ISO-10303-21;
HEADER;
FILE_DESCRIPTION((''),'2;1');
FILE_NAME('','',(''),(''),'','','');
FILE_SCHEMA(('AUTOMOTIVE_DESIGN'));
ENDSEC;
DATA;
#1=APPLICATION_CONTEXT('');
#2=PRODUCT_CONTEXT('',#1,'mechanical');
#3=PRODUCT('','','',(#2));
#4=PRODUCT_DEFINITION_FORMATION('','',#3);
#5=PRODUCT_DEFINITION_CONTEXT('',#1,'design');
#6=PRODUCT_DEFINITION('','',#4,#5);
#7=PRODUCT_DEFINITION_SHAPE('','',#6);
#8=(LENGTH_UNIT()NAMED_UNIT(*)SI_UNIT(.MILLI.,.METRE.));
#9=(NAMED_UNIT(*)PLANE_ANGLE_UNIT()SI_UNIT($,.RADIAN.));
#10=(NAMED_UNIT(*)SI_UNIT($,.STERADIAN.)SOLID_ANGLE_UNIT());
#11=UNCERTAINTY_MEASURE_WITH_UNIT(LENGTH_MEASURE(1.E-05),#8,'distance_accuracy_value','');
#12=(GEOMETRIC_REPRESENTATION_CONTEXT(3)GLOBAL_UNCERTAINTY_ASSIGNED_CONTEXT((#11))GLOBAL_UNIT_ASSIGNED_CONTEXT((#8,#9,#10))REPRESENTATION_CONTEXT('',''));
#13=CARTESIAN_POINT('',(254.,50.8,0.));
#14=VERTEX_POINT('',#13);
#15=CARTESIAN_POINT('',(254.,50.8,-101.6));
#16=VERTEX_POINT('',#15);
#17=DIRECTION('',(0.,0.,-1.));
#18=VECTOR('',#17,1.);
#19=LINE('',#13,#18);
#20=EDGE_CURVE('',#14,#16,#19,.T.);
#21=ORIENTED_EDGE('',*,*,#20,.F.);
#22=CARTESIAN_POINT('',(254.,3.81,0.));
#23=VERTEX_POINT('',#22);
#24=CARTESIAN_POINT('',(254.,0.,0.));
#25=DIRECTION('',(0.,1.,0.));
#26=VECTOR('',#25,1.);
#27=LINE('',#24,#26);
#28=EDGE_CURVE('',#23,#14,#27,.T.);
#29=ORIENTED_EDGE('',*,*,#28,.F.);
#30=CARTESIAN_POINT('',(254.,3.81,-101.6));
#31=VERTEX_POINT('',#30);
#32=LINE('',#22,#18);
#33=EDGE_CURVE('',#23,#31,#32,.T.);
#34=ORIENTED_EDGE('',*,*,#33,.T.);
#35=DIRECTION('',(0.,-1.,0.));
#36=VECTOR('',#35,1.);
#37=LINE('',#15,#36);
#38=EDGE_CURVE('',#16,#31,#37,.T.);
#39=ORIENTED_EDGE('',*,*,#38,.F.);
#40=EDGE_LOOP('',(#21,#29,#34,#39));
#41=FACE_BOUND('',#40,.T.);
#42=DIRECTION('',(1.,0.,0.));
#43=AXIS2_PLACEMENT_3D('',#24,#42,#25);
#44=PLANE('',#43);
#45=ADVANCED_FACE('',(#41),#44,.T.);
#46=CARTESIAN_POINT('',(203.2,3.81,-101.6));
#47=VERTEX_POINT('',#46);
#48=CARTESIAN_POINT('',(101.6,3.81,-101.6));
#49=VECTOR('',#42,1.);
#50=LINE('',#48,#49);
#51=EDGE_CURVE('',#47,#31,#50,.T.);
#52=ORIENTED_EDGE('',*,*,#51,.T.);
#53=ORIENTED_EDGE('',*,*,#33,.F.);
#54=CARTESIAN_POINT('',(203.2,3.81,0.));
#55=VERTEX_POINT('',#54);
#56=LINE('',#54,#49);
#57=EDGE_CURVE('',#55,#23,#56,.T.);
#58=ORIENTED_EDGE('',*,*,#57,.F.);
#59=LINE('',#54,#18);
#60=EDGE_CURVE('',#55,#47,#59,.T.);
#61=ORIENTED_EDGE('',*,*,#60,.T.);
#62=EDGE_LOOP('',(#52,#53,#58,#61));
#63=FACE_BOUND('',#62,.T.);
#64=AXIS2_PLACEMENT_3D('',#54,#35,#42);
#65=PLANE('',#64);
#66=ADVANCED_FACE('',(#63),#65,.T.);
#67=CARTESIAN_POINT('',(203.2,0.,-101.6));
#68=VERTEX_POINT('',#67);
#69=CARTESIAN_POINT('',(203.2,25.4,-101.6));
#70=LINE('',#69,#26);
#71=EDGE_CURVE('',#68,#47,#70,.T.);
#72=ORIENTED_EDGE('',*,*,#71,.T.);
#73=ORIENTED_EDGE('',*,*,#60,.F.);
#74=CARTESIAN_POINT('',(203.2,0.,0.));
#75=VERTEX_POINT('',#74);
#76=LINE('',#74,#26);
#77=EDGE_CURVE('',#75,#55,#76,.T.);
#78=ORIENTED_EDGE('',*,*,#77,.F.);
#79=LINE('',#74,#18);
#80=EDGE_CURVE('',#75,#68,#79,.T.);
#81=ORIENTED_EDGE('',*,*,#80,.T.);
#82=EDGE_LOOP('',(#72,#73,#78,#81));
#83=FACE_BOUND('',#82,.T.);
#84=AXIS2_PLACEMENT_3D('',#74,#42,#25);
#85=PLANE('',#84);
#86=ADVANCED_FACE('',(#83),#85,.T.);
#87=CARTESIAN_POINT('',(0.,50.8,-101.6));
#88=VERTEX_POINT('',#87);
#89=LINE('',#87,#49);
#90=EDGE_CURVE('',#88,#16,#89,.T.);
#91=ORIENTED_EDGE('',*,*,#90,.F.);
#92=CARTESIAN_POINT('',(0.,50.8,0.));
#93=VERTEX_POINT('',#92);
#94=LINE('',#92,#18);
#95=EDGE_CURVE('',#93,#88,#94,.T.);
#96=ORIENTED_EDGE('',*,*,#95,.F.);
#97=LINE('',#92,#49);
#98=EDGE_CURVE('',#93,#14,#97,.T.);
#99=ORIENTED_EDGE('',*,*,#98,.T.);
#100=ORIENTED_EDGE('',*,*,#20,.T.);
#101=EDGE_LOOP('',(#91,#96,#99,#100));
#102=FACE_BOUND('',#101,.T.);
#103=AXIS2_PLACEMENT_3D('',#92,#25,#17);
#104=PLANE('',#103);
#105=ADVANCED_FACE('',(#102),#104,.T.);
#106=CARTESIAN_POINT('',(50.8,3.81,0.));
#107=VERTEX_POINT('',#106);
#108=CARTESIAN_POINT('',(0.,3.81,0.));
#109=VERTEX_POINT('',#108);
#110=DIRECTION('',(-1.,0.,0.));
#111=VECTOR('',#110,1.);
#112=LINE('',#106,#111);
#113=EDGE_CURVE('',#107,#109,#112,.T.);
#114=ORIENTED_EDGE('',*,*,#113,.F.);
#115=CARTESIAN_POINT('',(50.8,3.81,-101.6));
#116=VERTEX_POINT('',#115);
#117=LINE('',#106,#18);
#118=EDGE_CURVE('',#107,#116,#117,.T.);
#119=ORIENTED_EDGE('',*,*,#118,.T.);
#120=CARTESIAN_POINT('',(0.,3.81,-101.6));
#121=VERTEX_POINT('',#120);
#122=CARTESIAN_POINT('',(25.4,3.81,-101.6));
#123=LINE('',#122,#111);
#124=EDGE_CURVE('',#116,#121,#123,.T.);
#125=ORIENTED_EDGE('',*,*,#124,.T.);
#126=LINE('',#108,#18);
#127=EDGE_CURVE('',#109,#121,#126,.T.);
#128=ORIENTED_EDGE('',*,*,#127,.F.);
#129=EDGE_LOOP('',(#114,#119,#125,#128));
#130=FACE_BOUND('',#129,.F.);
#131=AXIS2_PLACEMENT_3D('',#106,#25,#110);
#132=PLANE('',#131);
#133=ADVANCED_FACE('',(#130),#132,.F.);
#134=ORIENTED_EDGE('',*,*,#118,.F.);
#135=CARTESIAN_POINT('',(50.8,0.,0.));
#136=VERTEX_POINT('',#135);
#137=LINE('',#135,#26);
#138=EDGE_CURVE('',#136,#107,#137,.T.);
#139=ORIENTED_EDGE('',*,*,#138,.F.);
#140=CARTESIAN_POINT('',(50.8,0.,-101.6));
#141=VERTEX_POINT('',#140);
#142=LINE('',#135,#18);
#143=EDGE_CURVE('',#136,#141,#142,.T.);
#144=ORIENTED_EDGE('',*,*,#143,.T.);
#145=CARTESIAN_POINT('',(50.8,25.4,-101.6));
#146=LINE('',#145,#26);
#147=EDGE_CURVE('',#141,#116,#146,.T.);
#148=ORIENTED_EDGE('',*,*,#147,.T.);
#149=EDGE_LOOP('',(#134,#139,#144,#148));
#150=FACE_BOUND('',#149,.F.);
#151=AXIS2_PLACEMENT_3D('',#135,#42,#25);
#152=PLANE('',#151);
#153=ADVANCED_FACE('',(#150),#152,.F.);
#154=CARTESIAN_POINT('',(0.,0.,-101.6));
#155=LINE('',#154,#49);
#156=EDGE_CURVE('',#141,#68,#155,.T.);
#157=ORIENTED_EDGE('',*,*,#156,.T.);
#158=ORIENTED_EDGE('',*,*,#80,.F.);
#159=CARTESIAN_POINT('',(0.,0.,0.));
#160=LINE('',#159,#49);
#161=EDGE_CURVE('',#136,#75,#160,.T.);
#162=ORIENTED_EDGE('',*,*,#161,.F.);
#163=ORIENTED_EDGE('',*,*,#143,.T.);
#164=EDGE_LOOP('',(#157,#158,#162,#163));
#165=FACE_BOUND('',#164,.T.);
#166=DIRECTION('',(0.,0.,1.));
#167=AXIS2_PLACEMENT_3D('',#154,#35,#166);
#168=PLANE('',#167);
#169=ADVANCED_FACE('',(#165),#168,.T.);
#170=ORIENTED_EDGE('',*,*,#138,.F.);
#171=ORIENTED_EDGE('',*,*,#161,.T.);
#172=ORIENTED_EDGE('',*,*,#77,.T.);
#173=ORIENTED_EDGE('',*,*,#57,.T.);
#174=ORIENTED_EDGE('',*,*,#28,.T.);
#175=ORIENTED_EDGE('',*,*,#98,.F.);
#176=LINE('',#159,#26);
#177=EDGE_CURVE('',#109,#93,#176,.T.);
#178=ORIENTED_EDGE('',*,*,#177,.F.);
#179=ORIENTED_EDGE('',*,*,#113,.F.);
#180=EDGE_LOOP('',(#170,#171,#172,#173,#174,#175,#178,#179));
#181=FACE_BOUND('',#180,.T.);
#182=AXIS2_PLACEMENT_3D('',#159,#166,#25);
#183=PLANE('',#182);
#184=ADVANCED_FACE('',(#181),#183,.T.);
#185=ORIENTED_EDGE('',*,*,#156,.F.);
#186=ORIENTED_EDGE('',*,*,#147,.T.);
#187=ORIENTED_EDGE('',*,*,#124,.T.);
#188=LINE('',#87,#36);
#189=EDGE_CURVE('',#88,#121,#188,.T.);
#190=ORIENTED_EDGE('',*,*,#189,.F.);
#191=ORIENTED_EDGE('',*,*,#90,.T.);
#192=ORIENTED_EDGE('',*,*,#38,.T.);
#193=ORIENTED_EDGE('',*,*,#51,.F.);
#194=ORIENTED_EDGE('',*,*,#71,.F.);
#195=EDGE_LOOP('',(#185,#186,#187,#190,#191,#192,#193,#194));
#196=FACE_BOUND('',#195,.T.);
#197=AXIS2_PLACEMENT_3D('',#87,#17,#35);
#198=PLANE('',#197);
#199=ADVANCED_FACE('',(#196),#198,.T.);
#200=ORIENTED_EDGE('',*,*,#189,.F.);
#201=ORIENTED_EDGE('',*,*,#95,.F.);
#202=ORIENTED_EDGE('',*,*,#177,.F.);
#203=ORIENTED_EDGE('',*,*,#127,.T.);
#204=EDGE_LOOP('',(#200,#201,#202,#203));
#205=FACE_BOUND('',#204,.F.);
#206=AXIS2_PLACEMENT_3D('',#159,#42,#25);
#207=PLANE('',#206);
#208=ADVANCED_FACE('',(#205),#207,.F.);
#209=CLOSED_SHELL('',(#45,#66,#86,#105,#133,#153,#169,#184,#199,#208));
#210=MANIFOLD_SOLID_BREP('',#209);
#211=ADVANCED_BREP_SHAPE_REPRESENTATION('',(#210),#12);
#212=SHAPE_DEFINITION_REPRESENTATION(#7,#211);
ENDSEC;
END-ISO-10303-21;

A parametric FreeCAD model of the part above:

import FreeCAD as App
import Part
import Sketcher
from FreeCAD import Vector
Q = App.Units.Quantity

doc = App.newDocument("Part")
params = doc.addObject("Spreadsheet::Sheet", "Params")
for row, (alias, value) in enumerate([
    ("sketch1_width", "2 in"),
    ("sketch1_height", "4 in"),
    ("pad1_length", "10 in"),
    ("sketch2_width", "2 in"),
    ("sketch2_height", "0.15 in"),
], start=1):
    params.set(f"A{row}", alias)
    params.set(f"B{row}", "=" + value)
    params.setAlias(f"B{row}", alias)

body = doc.addObject("PartDesign::Body", "Body")

sketch1 = body.newObject("Sketcher::SketchObject", "Sketch")
sketch1.AttachmentSupport = (doc.getObject("YZ_Plane"), [""])
sketch1.MapMode = "FlatFace"
sketch1.addGeometry(Part.LineSegment(Vector(51, 0, 0), Vector(0, 0, 0)), False)
sketch1.addGeometry(Part.LineSegment(Vector(0, 0, 0), Vector(0, -102, 0)), False)
sketch1.addGeometry(Part.LineSegment(Vector(0, -102, 0), Vector(51, -102, 0)), False)
sketch1.addGeometry(Part.LineSegment(Vector(51, -102, 0), Vector(51, 0, 0)), False)
sketch1.addConstraint(Sketcher.Constraint("Coincident", 0, 2, 1, 1))
sketch1.addConstraint(Sketcher.Constraint("Coincident", 1, 2, 2, 1))
sketch1.addConstraint(Sketcher.Constraint("Coincident", 2, 2, 3, 1))
sketch1.addConstraint(Sketcher.Constraint("Coincident", 3, 2, 0, 1))
sketch1.addConstraint(Sketcher.Constraint("Horizontal", 0))
sketch1.addConstraint(Sketcher.Constraint("Vertical", 1))
sketch1.addConstraint(Sketcher.Constraint("Horizontal", 2))
sketch1.addConstraint(Sketcher.Constraint("Vertical", 3))
sketch1.addConstraint(Sketcher.Constraint("Coincident", 0, 2, -1, 1))
sketch1.addConstraint(Sketcher.Constraint("DistanceX", 0, 2, 0, 1, Q("2 in")))
sketch1.addConstraint(Sketcher.Constraint("DistanceY", 1, 2, 1, 1, Q("4 in")))
sketch1.setExpression("Constraints[9]", "Params.sketch1_width")
sketch1.setExpression("Constraints[10]", "Params.sketch1_height")
pad1 = body.newObject("PartDesign::Pad", "Pad")
pad1.Profile = sketch1
pad1.setExpression("Length", "Params.pad1_length")

sketch2 = body.newObject("Sketcher::SketchObject", "Sketch001")
sketch2.AttachmentSupport = (doc.getObject("XY_Plane"), [""])
sketch2.MapMode = "FlatFace"
sketch2.addGeometry(Part.LineSegment(Vector(0, 3.8, 0), Vector(0, 0, 0)), False)
sketch2.addGeometry(Part.LineSegment(Vector(0, 0, 0), Vector(50.8, 0, 0)), False)
sketch2.addGeometry(Part.LineSegment(Vector(50.8, 0, 0), Vector(50.8, 3.8, 0)), False)
sketch2.addGeometry(Part.LineSegment(Vector(50.8, 3.8, 0), Vector(0, 3.8, 0)), False)
sketch2.addGeometry(Part.LineSegment(Vector(203.2, 3.8, 0), Vector(203.2, 0, 0)), False)
sketch2.addGeometry(Part.LineSegment(Vector(203.2, 0, 0), Vector(254, 0, 0)), False)
sketch2.addGeometry(Part.LineSegment(Vector(254, 0, 0), Vector(254, 3.8, 0)), False)
sketch2.addGeometry(Part.LineSegment(Vector(254, 3.8, 0), Vector(203.2, 3.8, 0)), False)
sketch2.addConstraint(Sketcher.Constraint("Coincident", 0, 2, 1, 1))
sketch2.addConstraint(Sketcher.Constraint("Coincident", 1, 2, 2, 1))
sketch2.addConstraint(Sketcher.Constraint("Coincident", 2, 2, 3, 1))
sketch2.addConstraint(Sketcher.Constraint("Coincident", 3, 2, 0, 1))
sketch2.addConstraint(Sketcher.Constraint("Coincident", 4, 2, 5, 1))
sketch2.addConstraint(Sketcher.Constraint("Coincident", 5, 2, 6, 1))
sketch2.addConstraint(Sketcher.Constraint("Coincident", 6, 2, 7, 1))
sketch2.addConstraint(Sketcher.Constraint("Coincident", 7, 2, 4, 1))
sketch2.addConstraint(Sketcher.Constraint("Vertical", 0))
sketch2.addConstraint(Sketcher.Constraint("Horizontal", 1))
sketch2.addConstraint(Sketcher.Constraint("Vertical", 2))
sketch2.addConstraint(Sketcher.Constraint("Horizontal", 3))
sketch2.addConstraint(Sketcher.Constraint("Vertical", 4))
sketch2.addConstraint(Sketcher.Constraint("Horizontal", 5))
sketch2.addConstraint(Sketcher.Constraint("Vertical", 6))
sketch2.addConstraint(Sketcher.Constraint("Horizontal", 7))
sketch2.addConstraint(Sketcher.Constraint("Coincident", 0, 2, -1, 1))
sketch2.addConstraint(Sketcher.Constraint("PointOnObject", 4, 2, -1))
sketch2.addConstraint(Sketcher.Constraint("Horizontal", 3, 2, 6, 2))
sketch2.addConstraint(Sketcher.Constraint("Equal", 3, 5))
sketch2.addConstraint(Sketcher.Constraint("DistanceX", 1, 1, 1, 2, Q("2 in")))
sketch2.addConstraint(Sketcher.Constraint("DistanceY", 0, 2, 0, 1, Q("0.15 in")))
sketch2.addConstraint(Sketcher.Constraint("DistanceX", -1, 1, 4, 2, Q("8 in")))
sketch2.setExpression("Constraints[20]", "Params.sketch2_width")
sketch2.setExpression("Constraints[21]", "Params.sketch2_height")
pocket1 = body.newObject("PartDesign::Pocket", "Pocket")
pocket1.Profile = sketch2
pocket1.Type = "UpToFirst"

doc.recompute()
